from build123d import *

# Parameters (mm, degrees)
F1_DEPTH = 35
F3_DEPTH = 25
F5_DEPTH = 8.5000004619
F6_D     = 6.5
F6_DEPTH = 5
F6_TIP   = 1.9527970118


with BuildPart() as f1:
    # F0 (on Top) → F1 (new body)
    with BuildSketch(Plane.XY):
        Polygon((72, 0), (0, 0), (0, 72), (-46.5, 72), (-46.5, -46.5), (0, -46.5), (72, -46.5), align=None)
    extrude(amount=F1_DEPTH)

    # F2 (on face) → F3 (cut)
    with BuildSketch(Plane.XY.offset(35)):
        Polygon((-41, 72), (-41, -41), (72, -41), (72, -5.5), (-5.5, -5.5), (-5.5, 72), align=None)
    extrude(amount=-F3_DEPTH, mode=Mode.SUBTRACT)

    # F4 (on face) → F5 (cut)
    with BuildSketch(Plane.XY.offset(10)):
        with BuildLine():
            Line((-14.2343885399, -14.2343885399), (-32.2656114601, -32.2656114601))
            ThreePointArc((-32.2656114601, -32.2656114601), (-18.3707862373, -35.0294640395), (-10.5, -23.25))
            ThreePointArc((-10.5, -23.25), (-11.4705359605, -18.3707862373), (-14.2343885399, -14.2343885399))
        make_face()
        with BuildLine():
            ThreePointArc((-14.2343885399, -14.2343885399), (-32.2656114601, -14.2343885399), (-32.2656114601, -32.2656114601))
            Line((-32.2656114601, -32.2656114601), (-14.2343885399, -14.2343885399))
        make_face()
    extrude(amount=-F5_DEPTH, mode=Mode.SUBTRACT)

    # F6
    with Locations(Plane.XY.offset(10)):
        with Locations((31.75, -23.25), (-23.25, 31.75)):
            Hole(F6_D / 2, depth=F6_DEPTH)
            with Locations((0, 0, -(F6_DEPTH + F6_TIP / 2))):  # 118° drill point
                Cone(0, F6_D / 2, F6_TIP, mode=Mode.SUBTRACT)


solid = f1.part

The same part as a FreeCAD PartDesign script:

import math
import FreeCAD as App
import Part
import Sketcher
Q = App.Units.Quantity


def add_polygon(sketch, points):
    """Adds a closed chain of lines whose ends are joined by coincident constraints."""
    first, n = sketch.GeometryCount, len(points)
    for a, b in zip(points, points[1:] + points[:1]):
        sketch.addGeometry(Part.LineSegment(App.Vector(*a, 0), App.Vector(*b, 0)), False)
    for i in range(n):
        sketch.addConstraint(Sketcher.Constraint("Coincident", first + i, 2, first + (i + 1) % n, 1))

doc = App.newDocument("Part")
body = doc.addObject("PartDesign::Body", "Body")

# Sketch on XY plane
sketch1 = body.newObject("Sketcher::SketchObject", "Sketch")
sketch1.AttachmentSupport = (doc.getObject("XY_Plane"), [""])
sketch1.MapMode = "FlatFace"
add_polygon(sketch1, [(72, 0), (0, 0), (0, 72), (-46.5, 72), (-46.5, -46.5), (72, -46.5)])  # lines 0-5
sketch1.addConstraint(Sketcher.Constraint("Horizontal", 0))
sketch1.addConstraint(Sketcher.Constraint("Vertical", 1))
sketch1.addConstraint(Sketcher.Constraint("Horizontal", 2))
sketch1.addConstraint(Sketcher.Constraint("Vertical", 3))
sketch1.addConstraint(Sketcher.Constraint("Horizontal", 4))
sketch1.addConstraint(Sketcher.Constraint("Vertical", 5))
sketch1.addConstraint(Sketcher.Constraint("Coincident", 0, 2, -1, 1))
sketch1.addConstraint(Sketcher.Constraint("Equal", 0, 1))
sketch1.addConstraint(Sketcher.Constraint("Equal", 4, 3))
sketch1.addConstraint(Sketcher.Constraint("DistanceX", 0, 2, 0, 1, Q("72 mm")))
sketch1.addConstraint(Sketcher.Constraint("DistanceX", 2, 2, 2, 1, Q("46.5 mm")))
pad1 = body.newObject("PartDesign::Pad", "Pad")
pad1.Profile = sketch1
pad1.Length = 35

# Sketch on XY plane
sketch2 = body.newObject("Sketcher::SketchObject", "Sketch001")
sketch2.AttachmentSupport = (doc.getObject("XY_Plane"), [""])
sketch2.MapMode = "FlatFace"
sketch2.AttachmentOffset = App.Placement(App.Vector(0, 0, 35), App.Rotation())
add_polygon(sketch2, [(-41, 72), (-41, -41), (72, -41), (72, -5.5), (-5.5, -5.5), (-5.5, 72)])  # lines 0-5
sketch2.addConstraint(Sketcher.Constraint("Vertical", 0))
sketch2.addConstraint(Sketcher.Constraint("Horizontal", 1))
sketch2.addConstraint(Sketcher.Constraint("Vertical", 2))
sketch2.addConstraint(Sketcher.Constraint("Horizontal", 3))
sketch2.addConstraint(Sketcher.Constraint("Vertical", 4))
sketch2.addConstraint(Sketcher.Constraint("Horizontal", 5))
sketch2.addConstraint(Sketcher.Constraint("Equal", 1, 0))
sketch2.addConstraint(Sketcher.Constraint("Equal", 5, 2))
sketch2.addConstraint(Sketcher.Constraint("DistanceX", 1, 1, 1, 2, Q("113 mm")))
sketch2.addConstraint(Sketcher.Constraint("DistanceX", 3, 2, 3, 1, Q("77.5 mm")))
sketch2.addConstraint(Sketcher.Constraint("DistanceX", 0, 2, -1, 1, Q("41 mm")))
sketch2.addConstraint(Sketcher.Constraint("DistanceY", 0, 2, -1, 1, Q("41 mm")))
pocket1 = body.newObject("PartDesign::Pocket", "Pocket")
pocket1.Profile = sketch2
pocket1.Length = 25

# Sketch on XY plane
sketch3 = body.newObject("Sketcher::SketchObject", "Sketch002")
sketch3.AttachmentSupport = (doc.getObject("XY_Plane"), [""])
sketch3.MapMode = "FlatFace"
sketch3.AttachmentOffset = App.Placement(App.Vector(0, 0, 10), App.Rotation())
sketch3.addGeometry(Part.ArcOfCircle(Part.Circle(App.Vector(-23.25, -23.25, 0), App.Vector(0, 0, 1), 12.75), math.radians(-135), math.radians(0)), False)
sketch3.addGeometry(Part.ArcOfCircle(Part.Circle(App.Vector(-23.25, -23.25, 0), App.Vector(0, 0, 1), 12.75), math.radians(0), math.radians(45)), False)
sketch3.addGeometry(Part.ArcOfCircle(Part.Circle(App.Vector(-23.25, -23.25, 0), App.Vector(0, 0, 1), 12.75), math.radians(45), math.radians(225)), False)
sketch3.addConstraint(Sketcher.Constraint("Tangent", 0, 2, 1, 1))
sketch3.addConstraint(Sketcher.Constraint("Tangent", 1, 2, 2, 1))
sketch3.addConstraint(Sketcher.Constraint("Tangent", 2, 2, 0, 1))
sketch3.addConstraint(Sketcher.Constraint("Horizontal", 2, 3, 0, 2))
sketch3.addConstraint(Sketcher.Constraint("Radius", 0, Q("12.75 mm")))
sketch3.addConstraint(Sketcher.Constraint("DistanceX", 0, 2, -1, 1, Q("10.5 mm")))
sketch3.addConstraint(Sketcher.Constraint("DistanceY", 0, 3, -1, 1, Q("23.25 mm")))
sketch3.addConstraint(Sketcher.Constraint("DistanceX", 1, 2, -1, 1, Q("14.234389 mm")))
sketch3.addConstraint(Sketcher.Constraint("DistanceX", 2, 2, -1, 1, Q("32.265611 mm")))
pocket2 = body.newObject("PartDesign::Pocket", "Pocket001")
pocket2.Profile = sketch3
pocket2.Length = 8.5

# Sketch on XY plane
sketch4 = body.newObject("Sketcher::SketchObject", "Sketch003")
sketch4.AttachmentSupport = (doc.getObject("XY_Plane"), [""])
sketch4.MapMode = "FlatFace"
sketch4.AttachmentOffset = App.Placement(App.Vector(0, 0, 10), App.Rotation())
sketch4.addGeometry(Part.Circle(App.Vector(31.75, -23.25, 0), App.Vector(0, 0, 1), 3.25), False)
sketch4.addGeometry(Part.Circle(App.Vector(-23.25, 31.75, 0), App.Vector(0, 0, 1), 3.25), False)
sketch4.addConstraint(Sketcher.Constraint("Equal", 0, 1))
sketch4.addConstraint(Sketcher.Constraint("Diameter", 0, Q("6.5 mm")))
sketch4.addConstraint(Sketcher.Constraint("DistanceX", 1, 3, 0, 3, Q("55 mm")))
sketch4.addConstraint(Sketcher.Constraint("DistanceY", 0, 3, 1, 3, Q("55 mm")))
sketch4.addConstraint(Sketcher.Constraint("DistanceX", -1, 1, 0, 3, Q("31.75 mm")))
sketch4.addConstraint(Sketcher.Constraint("DistanceY", 0, 3, -1, 1, Q("23.25 mm")))
doc.recompute()
hole = body.newObject("PartDesign::Hole", "Hole")
hole.Profile = sketch4
hole.ThreadType = "None"
hole.Diameter = 6.5
hole.DepthType = "Dimension"
hole.Depth = 5
hole.DrillPoint = "Angled"
hole.DrillPointAngle = 118

doc.recompute()
